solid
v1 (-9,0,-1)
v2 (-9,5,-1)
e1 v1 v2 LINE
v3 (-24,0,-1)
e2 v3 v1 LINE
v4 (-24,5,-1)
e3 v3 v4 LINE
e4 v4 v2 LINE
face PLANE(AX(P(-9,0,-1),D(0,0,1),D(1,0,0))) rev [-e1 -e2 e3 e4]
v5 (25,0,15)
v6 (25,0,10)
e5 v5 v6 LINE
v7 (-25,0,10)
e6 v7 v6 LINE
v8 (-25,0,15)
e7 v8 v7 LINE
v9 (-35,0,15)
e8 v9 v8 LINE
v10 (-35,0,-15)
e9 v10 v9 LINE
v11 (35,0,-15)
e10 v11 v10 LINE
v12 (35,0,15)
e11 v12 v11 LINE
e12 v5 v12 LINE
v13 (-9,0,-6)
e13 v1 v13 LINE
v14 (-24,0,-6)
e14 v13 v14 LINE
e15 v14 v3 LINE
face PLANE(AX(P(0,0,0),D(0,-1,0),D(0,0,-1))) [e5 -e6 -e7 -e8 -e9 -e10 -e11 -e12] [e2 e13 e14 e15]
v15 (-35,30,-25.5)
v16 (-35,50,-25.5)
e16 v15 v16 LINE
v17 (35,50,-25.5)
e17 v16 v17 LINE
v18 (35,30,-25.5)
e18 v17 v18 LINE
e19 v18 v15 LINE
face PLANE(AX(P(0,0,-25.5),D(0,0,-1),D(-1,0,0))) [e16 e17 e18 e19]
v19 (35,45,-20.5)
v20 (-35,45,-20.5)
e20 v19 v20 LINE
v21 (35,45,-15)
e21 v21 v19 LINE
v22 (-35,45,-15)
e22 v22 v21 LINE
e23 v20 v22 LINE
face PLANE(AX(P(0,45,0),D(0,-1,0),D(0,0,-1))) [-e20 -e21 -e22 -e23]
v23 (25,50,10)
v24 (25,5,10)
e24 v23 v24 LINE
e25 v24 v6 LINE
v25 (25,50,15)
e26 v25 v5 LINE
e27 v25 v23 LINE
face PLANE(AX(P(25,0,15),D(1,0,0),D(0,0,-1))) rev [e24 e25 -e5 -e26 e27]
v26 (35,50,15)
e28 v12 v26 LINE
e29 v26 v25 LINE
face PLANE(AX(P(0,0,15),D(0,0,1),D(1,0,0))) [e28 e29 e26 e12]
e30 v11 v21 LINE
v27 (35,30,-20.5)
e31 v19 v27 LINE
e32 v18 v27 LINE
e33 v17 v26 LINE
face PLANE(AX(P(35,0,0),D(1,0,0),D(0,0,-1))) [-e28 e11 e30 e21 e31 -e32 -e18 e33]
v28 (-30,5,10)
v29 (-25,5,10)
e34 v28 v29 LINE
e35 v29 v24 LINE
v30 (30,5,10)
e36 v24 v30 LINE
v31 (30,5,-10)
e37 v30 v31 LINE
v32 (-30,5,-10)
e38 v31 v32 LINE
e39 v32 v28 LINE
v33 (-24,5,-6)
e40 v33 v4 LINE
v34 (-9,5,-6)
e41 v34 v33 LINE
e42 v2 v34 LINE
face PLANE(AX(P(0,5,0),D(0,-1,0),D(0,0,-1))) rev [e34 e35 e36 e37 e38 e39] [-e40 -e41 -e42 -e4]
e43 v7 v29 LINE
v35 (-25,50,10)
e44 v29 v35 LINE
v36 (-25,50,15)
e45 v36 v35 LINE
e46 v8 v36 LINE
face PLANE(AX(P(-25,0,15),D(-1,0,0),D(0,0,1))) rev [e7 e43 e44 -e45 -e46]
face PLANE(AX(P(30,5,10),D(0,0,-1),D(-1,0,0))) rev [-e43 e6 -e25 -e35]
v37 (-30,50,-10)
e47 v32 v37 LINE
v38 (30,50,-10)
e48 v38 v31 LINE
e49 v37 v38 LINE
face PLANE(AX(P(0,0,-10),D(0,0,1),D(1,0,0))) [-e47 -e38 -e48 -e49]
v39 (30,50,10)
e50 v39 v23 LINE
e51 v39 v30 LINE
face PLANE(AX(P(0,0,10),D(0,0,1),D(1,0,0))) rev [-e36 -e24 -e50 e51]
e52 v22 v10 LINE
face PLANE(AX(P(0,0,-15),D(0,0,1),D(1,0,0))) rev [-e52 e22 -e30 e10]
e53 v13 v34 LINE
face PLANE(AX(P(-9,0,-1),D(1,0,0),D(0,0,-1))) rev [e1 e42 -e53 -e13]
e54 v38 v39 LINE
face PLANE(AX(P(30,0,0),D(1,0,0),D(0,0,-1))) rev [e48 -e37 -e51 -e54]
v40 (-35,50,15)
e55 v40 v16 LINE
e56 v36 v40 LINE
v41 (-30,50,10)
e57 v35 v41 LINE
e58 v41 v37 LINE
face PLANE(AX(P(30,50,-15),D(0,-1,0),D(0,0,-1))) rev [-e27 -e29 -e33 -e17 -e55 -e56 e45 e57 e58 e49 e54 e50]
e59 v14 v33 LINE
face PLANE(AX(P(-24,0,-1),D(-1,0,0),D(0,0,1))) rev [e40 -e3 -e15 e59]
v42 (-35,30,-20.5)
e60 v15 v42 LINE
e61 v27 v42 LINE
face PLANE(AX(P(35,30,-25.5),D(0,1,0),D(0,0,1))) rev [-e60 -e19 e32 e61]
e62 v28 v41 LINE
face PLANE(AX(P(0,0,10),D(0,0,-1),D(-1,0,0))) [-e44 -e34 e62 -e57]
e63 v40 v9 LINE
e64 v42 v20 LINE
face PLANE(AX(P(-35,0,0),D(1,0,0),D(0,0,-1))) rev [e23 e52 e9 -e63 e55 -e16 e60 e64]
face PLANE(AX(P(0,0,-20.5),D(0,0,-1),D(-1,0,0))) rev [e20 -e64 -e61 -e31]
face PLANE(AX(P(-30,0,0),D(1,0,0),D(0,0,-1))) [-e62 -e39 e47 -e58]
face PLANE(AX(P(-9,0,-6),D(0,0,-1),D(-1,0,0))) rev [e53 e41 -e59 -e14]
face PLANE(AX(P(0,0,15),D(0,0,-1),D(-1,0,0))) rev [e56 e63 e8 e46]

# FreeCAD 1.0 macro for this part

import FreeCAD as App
import Part
import Sketcher


def add_polygon(sketch, points):
    """Adds a closed chain of lines whose ends are joined by coincident constraints."""
    first, n = sketch.GeometryCount, len(points)
    for a, b in zip(points, points[1:] + points[:1]):
        sketch.addGeometry(Part.LineSegment(App.Vector(*a, 0), App.Vector(*b, 0)), False)
    for i in range(n):
        sketch.addConstraint(Sketcher.Constraint("Coincident", first + i, 2, first + (i + 1) % n, 1))

doc = App.newDocument("Part")
body = doc.addObject("PartDesign::Body", "Body")

sketch1 = body.newObject("Sketcher::SketchObject", "Sketch")
sketch1.AttachmentSupport = (doc.getObject("XZ_Plane"), [""])
sketch1.MapMode = "FlatFace"
add_polygon(sketch1, [(-30, -10), (-30, 10), (30, 10), (30, -10)])
sketch1.addConstraint(Sketcher.Constraint("Vertical", 0))
sketch1.addConstraint(Sketcher.Constraint("Horizontal", 1))
sketch1.addConstraint(Sketcher.Constraint("Vertical", 2))
sketch1.addConstraint(Sketcher.Constraint("Horizontal", 3))
sketch1.addConstraint(Sketcher.Constraint("Symmetric", 0, 2, 2, 2, -1, 1))
sketch1.addConstraint(Sketcher.Constraint("DistanceX", 1, 1, 1, 2, 60.0))
sketch1.addConstraint(Sketcher.Constraint("DistanceY", 0, 1, 0, 2, 20.0))
pad1 = body.newObject("PartDesign::Pad", "Pad")
pad1.Profile = sketch1
pad1.Length = 5
pad1.Reversed = True

sketch2 = body.newObject("Sketcher::SketchObject", "Sketch001")
sketch2.AttachmentSupport = (doc.getObject("XZ_Plane"), [""])
sketch2.MapMode = "FlatFace"
sketch2.AttachmentOffset = App.Placement(App.Vector(0, 0, -5), App.Rotation())
add_polygon(sketch2, [(-24, -6), (-24, -1), (-9, -1), (-9, -6)])
sketch2.addConstraint(Sketcher.Constraint("Vertical", 0))
sketch2.addConstraint(Sketcher.Constraint("Horizontal", 1))
sketch2.addConstraint(Sketcher.Constraint("Vertical", 2))
sketch2.addConstraint(Sketcher.Constraint("Horizontal", 3))
sketch2.addConstraint(Sketcher.Constraint("DistanceX", 1, 1, 1, 2, 15.0))
sketch2.addConstraint(Sketcher.Constraint("DistanceY", 0, 1, 0, 2, 5.0))
sketch2.addConstraint(Sketcher.Constraint("DistanceX", 0, 2, -1, 1, 24.0))
sketch2.addConstraint(Sketcher.Constraint("DistanceY", 0, 2, -1, 1, 1.0))
pocket1 = body.newObject("PartDesign::Pocket", "Pocket")
pocket1.Profile = sketch2
pocket1.Length = 5
pocket1.Reversed = True

sketch3 = body.newObject("Sketcher::SketchObject", "Sketch002")
sketch3.AttachmentSupport = (doc.getObject("XY_Plane"), [""])
sketch3.MapMode = "FlatFace"
sketch3.AttachmentOffset = App.Placement(App.Vector(0, 0, -10), App.Rotation())
add_polygon(sketch3, [(30, 50), (30, 0), (-30, 0), (-30, 50)])
sketch3.addConstraint(Sketcher.Constraint("Vertical", 0))
sketch3.addConstraint(Sketcher.Constraint("Horizontal", 1))
sketch3.addConstraint(Sketcher.Constraint("Vertical", 2))
sketch3.addConstraint(Sketcher.Constraint("Horizontal", 3))
sketch3.addConstraint(Sketcher.Constraint("Symmetric", 0, 2, 1, 2, -1, 1))
sketch3.addConstraint(Sketcher.Constraint("DistanceX", 1, 2, 1, 1, 60.0))
sketch3.addConstraint(Sketcher.Constraint("DistanceY", 0, 2, 0, 1, 50.0))
pad2 = body.newObject("PartDesign::Pad", "Pad001")
pad2.Profile = sketch3
pad2.Length = 5
pad2.Reversed = True

sketch4 = body.newObject("Sketcher::SketchObject", "Sketch003")
sketch4.AttachmentSupport = (doc.getObject("YZ_Plane"), [""])
sketch4.MapMode = "FlatFace"
sketch4.AttachmentOffset = App.Placement(App.Vector(0, 0, 30), App.Rotation())
add_polygon(sketch4, [(50, 10), (0, 10), (0, -15), (50, -15)])
sketch4.addConstraint(Sketcher.Constraint("Horizontal", 0))
sketch4.addConstraint(Sketcher.Constraint("Vertical", 1))
sketch4.addConstraint(Sketcher.Constraint("Horizontal", 2))
sketch4.addConstraint(Sketcher.Constraint("Vertical", 3))
sketch4.addConstraint(Sketcher.Constraint("PointOnObject", 0, 2, -2))
sketch4.addConstraint(Sketcher.Constraint("DistanceX", 0, 2, 0, 1, 50.0))
sketch4.addConstraint(Sketcher.Constraint("DistanceY", 1, 2, 1, 1, 25.0))
sketch4.addConstraint(Sketcher.Constraint("DistanceY", -1, 1, 0, 2, 10.0))
pad3 = body.newObject("PartDesign::Pad", "Pad002")
pad3.Profile = sketch4
pad3.Length = 5

sketch5 = body.newObject("Sketcher::SketchObject", "Sketch004")
sketch5.AttachmentSupport = (doc.getObject("YZ_Plane"), [""])
sketch5.MapMode = "FlatFace"
sketch5.AttachmentOffset = App.Placement(App.Vector(0, 0, -30), App.Rotation())
add_polygon(sketch5, [(50, -15), (0, -15), (0, 10), (50, 10)])
sketch5.addConstraint(Sketcher.Constraint("Horizontal", 0))
sketch5.addConstraint(Sketcher.Constraint("Vertical", 1))
sketch5.addConstraint(Sketcher.Constraint("Horizontal", 2))
sketch5.addConstraint(Sketcher.Constraint("Vertical", 3))
sketch5.addConstraint(Sketcher.Constraint("PointOnObject", 0, 2, -2))
sketch5.addConstraint(Sketcher.Constraint("DistanceX", 0, 2, 0, 1, 50.0))
sketch5.addConstraint(Sketcher.Constraint("DistanceY", 1, 1, 1, 2, 25.0))
sketch5.addConstraint(Sketcher.Constraint("DistanceY", 0, 2, -1, 1, 15.0))
pad4 = body.newObject("PartDesign::Pad", "Pad003")
pad4.Profile = sketch5
pad4.Length = 5
pad4.Reversed = True

sketch6 = body.newObject("Sketcher::SketchObject", "Sketch005")
sketch6.AttachmentSupport = (doc.getObject("XY_Plane"), [""])
sketch6.MapMode = "FlatFace"
sketch6.AttachmentOffset = App.Placement(App.Vector(0, 0, 10), App.Rotation())
add_polygon(sketch6, [(25, 50), (25, 0), (35, 0), (35, 50)])
sketch6.addConstraint(Sketcher.Constraint("Vertical", 0))
sketch6.addConstraint(Sketcher.Constraint("Horizontal", 1))
sketch6.addConstraint(Sketcher.Constraint("Vertical", 2))
sketch6.addConstraint(Sketcher.Constraint("Horizontal", 3))
sketch6.addConstraint(Sketcher.Constraint("PointOnObject", 0, 2, -1))
sketch6.addConstraint(Sketcher.Constraint("DistanceX", 1, 1, 1, 2, 10.0))
sketch6.addConstraint(Sketcher.Constraint("DistanceY", 0, 2, 0, 1, 50.0))
sketch6.addConstraint(Sketcher.Constraint("DistanceX", -1, 1, 0, 2, 25.0))
pad5 = body.newObject("PartDesign::Pad", "Pad004")
pad5.Profile = sketch6
pad5.Length = 5

sketch7 = body.newObject("Sketcher::SketchObject", "Sketch006")
sketch7.AttachmentSupport = (doc.getObject("XY_Plane"), [""])
sketch7.MapMode = "FlatFace"
sketch7.AttachmentOffset = App.Placement(App.Vector(0, 0, 10), App.Rotation())
add_polygon(sketch7, [(-35, 50), (-35, 0), (-25, 0), (-25, 50)])
sketch7.addConstraint(Sketcher.Constraint("Vertical", 0))
sketch7.addConstraint(Sketcher.Constraint("Horizontal", 1))
sketch7.addConstraint(Sketcher.Constraint("Vertical", 2))
sketch7.addConstraint(Sketcher.Constraint("Horizontal", 3))
sketch7.addConstraint(Sketcher.Constraint("PointOnObject", 0, 2, -1))
sketch7.addConstraint(Sketcher.Constraint("DistanceX", 1, 1, 1, 2, 10.0))
sketch7.addConstraint(Sketcher.Constraint("DistanceY", 0, 2, 0, 1, 50.0))
sketch7.addConstraint(Sketcher.Constraint("DistanceX", 0, 2, -1, 1, 35.0))
pad6 = body.newObject("PartDesign::Pad", "Pad005")
pad6.Profile = sketch7
pad6.Length = 5

sketch8 = body.newObject("Sketcher::SketchObject", "Sketch007")
sketch8.AttachmentSupport = (doc.getObject("XZ_Plane"), [""])
sketch8.MapMode = "FlatFace"
sketch8.AttachmentOffset = App.Placement(App.Vector(0, 0, -50), App.Rotation())
add_polygon(sketch8, [(-35, -20), (-35, -15), (35, -15), (35, -20)])
sketch8.addConstraint(Sketcher.Constraint("Vertical", 0))
sketch8.addConstraint(Sketcher.Constraint("Horizontal", 1))
sketch8.addConstraint(Sketcher.Constraint("Vertical", 2))
sketch8.addConstraint(Sketcher.Constraint("Horizontal", 3))
sketch8.addConstraint(Sketcher.Constraint("DistanceX", 1, 1, 1, 2, 70.0))
sketch8.addConstraint(Sketcher.Constraint("DistanceY", 0, 1, 0, 2, 5.5))
sketch8.addConstraint(Sketcher.Constraint("DistanceX", 0, 2, -1, 1, 35.0))
sketch8.addConstraint(Sketcher.Constraint("DistanceY", 0, 2, -1, 1, 15.0))
pad7 = body.newObject("PartDesign::Pad", "Pad006")
pad7.Profile = sketch8
pad7.Length = 5

sketch9 = body.newObject("Sketcher::SketchObject", "Sketch008")
sketch9.AttachmentSupport = (doc.getObject("XY_Plane"), [""])
sketch9.MapMode = "FlatFace"
sketch9.AttachmentOffset = App.Placement(App.Vector(0, 0, -20.5), App.Rotation())
add_polygon(sketch9, [(35, 50), (35, 30), (-35, 30), (-35, 50)])
sketch9.addConstraint(Sketcher.Constraint("Vertical", 0))
sketch9.addConstraint(Sketcher.Constraint("Horizontal", 1))
sketch9.addConstraint(Sketcher.Constraint("Vertical", 2))
sketch9.addConstraint(Sketcher.Constraint("Horizontal", 3))
sketch9.addConstraint(Sketcher.Constraint("DistanceX", 1, 2, 1, 1, 70.0))
sketch9.addConstraint(Sketcher.Constraint("DistanceY", 0, 2, 0, 1, 20.0))
sketch9.addConstraint(Sketcher.Constraint("DistanceX", -1, 1, 0, 2, 35.0))
sketch9.addConstraint(Sketcher.Constraint("DistanceY", -1, 1, 0, 2, 30.0))
pad8 = body.newObject("PartDesign::Pad", "Pad007")
pad8.Profile = sketch9
pad8.Length = 5
pad8.Reversed = True

doc.recompute()
